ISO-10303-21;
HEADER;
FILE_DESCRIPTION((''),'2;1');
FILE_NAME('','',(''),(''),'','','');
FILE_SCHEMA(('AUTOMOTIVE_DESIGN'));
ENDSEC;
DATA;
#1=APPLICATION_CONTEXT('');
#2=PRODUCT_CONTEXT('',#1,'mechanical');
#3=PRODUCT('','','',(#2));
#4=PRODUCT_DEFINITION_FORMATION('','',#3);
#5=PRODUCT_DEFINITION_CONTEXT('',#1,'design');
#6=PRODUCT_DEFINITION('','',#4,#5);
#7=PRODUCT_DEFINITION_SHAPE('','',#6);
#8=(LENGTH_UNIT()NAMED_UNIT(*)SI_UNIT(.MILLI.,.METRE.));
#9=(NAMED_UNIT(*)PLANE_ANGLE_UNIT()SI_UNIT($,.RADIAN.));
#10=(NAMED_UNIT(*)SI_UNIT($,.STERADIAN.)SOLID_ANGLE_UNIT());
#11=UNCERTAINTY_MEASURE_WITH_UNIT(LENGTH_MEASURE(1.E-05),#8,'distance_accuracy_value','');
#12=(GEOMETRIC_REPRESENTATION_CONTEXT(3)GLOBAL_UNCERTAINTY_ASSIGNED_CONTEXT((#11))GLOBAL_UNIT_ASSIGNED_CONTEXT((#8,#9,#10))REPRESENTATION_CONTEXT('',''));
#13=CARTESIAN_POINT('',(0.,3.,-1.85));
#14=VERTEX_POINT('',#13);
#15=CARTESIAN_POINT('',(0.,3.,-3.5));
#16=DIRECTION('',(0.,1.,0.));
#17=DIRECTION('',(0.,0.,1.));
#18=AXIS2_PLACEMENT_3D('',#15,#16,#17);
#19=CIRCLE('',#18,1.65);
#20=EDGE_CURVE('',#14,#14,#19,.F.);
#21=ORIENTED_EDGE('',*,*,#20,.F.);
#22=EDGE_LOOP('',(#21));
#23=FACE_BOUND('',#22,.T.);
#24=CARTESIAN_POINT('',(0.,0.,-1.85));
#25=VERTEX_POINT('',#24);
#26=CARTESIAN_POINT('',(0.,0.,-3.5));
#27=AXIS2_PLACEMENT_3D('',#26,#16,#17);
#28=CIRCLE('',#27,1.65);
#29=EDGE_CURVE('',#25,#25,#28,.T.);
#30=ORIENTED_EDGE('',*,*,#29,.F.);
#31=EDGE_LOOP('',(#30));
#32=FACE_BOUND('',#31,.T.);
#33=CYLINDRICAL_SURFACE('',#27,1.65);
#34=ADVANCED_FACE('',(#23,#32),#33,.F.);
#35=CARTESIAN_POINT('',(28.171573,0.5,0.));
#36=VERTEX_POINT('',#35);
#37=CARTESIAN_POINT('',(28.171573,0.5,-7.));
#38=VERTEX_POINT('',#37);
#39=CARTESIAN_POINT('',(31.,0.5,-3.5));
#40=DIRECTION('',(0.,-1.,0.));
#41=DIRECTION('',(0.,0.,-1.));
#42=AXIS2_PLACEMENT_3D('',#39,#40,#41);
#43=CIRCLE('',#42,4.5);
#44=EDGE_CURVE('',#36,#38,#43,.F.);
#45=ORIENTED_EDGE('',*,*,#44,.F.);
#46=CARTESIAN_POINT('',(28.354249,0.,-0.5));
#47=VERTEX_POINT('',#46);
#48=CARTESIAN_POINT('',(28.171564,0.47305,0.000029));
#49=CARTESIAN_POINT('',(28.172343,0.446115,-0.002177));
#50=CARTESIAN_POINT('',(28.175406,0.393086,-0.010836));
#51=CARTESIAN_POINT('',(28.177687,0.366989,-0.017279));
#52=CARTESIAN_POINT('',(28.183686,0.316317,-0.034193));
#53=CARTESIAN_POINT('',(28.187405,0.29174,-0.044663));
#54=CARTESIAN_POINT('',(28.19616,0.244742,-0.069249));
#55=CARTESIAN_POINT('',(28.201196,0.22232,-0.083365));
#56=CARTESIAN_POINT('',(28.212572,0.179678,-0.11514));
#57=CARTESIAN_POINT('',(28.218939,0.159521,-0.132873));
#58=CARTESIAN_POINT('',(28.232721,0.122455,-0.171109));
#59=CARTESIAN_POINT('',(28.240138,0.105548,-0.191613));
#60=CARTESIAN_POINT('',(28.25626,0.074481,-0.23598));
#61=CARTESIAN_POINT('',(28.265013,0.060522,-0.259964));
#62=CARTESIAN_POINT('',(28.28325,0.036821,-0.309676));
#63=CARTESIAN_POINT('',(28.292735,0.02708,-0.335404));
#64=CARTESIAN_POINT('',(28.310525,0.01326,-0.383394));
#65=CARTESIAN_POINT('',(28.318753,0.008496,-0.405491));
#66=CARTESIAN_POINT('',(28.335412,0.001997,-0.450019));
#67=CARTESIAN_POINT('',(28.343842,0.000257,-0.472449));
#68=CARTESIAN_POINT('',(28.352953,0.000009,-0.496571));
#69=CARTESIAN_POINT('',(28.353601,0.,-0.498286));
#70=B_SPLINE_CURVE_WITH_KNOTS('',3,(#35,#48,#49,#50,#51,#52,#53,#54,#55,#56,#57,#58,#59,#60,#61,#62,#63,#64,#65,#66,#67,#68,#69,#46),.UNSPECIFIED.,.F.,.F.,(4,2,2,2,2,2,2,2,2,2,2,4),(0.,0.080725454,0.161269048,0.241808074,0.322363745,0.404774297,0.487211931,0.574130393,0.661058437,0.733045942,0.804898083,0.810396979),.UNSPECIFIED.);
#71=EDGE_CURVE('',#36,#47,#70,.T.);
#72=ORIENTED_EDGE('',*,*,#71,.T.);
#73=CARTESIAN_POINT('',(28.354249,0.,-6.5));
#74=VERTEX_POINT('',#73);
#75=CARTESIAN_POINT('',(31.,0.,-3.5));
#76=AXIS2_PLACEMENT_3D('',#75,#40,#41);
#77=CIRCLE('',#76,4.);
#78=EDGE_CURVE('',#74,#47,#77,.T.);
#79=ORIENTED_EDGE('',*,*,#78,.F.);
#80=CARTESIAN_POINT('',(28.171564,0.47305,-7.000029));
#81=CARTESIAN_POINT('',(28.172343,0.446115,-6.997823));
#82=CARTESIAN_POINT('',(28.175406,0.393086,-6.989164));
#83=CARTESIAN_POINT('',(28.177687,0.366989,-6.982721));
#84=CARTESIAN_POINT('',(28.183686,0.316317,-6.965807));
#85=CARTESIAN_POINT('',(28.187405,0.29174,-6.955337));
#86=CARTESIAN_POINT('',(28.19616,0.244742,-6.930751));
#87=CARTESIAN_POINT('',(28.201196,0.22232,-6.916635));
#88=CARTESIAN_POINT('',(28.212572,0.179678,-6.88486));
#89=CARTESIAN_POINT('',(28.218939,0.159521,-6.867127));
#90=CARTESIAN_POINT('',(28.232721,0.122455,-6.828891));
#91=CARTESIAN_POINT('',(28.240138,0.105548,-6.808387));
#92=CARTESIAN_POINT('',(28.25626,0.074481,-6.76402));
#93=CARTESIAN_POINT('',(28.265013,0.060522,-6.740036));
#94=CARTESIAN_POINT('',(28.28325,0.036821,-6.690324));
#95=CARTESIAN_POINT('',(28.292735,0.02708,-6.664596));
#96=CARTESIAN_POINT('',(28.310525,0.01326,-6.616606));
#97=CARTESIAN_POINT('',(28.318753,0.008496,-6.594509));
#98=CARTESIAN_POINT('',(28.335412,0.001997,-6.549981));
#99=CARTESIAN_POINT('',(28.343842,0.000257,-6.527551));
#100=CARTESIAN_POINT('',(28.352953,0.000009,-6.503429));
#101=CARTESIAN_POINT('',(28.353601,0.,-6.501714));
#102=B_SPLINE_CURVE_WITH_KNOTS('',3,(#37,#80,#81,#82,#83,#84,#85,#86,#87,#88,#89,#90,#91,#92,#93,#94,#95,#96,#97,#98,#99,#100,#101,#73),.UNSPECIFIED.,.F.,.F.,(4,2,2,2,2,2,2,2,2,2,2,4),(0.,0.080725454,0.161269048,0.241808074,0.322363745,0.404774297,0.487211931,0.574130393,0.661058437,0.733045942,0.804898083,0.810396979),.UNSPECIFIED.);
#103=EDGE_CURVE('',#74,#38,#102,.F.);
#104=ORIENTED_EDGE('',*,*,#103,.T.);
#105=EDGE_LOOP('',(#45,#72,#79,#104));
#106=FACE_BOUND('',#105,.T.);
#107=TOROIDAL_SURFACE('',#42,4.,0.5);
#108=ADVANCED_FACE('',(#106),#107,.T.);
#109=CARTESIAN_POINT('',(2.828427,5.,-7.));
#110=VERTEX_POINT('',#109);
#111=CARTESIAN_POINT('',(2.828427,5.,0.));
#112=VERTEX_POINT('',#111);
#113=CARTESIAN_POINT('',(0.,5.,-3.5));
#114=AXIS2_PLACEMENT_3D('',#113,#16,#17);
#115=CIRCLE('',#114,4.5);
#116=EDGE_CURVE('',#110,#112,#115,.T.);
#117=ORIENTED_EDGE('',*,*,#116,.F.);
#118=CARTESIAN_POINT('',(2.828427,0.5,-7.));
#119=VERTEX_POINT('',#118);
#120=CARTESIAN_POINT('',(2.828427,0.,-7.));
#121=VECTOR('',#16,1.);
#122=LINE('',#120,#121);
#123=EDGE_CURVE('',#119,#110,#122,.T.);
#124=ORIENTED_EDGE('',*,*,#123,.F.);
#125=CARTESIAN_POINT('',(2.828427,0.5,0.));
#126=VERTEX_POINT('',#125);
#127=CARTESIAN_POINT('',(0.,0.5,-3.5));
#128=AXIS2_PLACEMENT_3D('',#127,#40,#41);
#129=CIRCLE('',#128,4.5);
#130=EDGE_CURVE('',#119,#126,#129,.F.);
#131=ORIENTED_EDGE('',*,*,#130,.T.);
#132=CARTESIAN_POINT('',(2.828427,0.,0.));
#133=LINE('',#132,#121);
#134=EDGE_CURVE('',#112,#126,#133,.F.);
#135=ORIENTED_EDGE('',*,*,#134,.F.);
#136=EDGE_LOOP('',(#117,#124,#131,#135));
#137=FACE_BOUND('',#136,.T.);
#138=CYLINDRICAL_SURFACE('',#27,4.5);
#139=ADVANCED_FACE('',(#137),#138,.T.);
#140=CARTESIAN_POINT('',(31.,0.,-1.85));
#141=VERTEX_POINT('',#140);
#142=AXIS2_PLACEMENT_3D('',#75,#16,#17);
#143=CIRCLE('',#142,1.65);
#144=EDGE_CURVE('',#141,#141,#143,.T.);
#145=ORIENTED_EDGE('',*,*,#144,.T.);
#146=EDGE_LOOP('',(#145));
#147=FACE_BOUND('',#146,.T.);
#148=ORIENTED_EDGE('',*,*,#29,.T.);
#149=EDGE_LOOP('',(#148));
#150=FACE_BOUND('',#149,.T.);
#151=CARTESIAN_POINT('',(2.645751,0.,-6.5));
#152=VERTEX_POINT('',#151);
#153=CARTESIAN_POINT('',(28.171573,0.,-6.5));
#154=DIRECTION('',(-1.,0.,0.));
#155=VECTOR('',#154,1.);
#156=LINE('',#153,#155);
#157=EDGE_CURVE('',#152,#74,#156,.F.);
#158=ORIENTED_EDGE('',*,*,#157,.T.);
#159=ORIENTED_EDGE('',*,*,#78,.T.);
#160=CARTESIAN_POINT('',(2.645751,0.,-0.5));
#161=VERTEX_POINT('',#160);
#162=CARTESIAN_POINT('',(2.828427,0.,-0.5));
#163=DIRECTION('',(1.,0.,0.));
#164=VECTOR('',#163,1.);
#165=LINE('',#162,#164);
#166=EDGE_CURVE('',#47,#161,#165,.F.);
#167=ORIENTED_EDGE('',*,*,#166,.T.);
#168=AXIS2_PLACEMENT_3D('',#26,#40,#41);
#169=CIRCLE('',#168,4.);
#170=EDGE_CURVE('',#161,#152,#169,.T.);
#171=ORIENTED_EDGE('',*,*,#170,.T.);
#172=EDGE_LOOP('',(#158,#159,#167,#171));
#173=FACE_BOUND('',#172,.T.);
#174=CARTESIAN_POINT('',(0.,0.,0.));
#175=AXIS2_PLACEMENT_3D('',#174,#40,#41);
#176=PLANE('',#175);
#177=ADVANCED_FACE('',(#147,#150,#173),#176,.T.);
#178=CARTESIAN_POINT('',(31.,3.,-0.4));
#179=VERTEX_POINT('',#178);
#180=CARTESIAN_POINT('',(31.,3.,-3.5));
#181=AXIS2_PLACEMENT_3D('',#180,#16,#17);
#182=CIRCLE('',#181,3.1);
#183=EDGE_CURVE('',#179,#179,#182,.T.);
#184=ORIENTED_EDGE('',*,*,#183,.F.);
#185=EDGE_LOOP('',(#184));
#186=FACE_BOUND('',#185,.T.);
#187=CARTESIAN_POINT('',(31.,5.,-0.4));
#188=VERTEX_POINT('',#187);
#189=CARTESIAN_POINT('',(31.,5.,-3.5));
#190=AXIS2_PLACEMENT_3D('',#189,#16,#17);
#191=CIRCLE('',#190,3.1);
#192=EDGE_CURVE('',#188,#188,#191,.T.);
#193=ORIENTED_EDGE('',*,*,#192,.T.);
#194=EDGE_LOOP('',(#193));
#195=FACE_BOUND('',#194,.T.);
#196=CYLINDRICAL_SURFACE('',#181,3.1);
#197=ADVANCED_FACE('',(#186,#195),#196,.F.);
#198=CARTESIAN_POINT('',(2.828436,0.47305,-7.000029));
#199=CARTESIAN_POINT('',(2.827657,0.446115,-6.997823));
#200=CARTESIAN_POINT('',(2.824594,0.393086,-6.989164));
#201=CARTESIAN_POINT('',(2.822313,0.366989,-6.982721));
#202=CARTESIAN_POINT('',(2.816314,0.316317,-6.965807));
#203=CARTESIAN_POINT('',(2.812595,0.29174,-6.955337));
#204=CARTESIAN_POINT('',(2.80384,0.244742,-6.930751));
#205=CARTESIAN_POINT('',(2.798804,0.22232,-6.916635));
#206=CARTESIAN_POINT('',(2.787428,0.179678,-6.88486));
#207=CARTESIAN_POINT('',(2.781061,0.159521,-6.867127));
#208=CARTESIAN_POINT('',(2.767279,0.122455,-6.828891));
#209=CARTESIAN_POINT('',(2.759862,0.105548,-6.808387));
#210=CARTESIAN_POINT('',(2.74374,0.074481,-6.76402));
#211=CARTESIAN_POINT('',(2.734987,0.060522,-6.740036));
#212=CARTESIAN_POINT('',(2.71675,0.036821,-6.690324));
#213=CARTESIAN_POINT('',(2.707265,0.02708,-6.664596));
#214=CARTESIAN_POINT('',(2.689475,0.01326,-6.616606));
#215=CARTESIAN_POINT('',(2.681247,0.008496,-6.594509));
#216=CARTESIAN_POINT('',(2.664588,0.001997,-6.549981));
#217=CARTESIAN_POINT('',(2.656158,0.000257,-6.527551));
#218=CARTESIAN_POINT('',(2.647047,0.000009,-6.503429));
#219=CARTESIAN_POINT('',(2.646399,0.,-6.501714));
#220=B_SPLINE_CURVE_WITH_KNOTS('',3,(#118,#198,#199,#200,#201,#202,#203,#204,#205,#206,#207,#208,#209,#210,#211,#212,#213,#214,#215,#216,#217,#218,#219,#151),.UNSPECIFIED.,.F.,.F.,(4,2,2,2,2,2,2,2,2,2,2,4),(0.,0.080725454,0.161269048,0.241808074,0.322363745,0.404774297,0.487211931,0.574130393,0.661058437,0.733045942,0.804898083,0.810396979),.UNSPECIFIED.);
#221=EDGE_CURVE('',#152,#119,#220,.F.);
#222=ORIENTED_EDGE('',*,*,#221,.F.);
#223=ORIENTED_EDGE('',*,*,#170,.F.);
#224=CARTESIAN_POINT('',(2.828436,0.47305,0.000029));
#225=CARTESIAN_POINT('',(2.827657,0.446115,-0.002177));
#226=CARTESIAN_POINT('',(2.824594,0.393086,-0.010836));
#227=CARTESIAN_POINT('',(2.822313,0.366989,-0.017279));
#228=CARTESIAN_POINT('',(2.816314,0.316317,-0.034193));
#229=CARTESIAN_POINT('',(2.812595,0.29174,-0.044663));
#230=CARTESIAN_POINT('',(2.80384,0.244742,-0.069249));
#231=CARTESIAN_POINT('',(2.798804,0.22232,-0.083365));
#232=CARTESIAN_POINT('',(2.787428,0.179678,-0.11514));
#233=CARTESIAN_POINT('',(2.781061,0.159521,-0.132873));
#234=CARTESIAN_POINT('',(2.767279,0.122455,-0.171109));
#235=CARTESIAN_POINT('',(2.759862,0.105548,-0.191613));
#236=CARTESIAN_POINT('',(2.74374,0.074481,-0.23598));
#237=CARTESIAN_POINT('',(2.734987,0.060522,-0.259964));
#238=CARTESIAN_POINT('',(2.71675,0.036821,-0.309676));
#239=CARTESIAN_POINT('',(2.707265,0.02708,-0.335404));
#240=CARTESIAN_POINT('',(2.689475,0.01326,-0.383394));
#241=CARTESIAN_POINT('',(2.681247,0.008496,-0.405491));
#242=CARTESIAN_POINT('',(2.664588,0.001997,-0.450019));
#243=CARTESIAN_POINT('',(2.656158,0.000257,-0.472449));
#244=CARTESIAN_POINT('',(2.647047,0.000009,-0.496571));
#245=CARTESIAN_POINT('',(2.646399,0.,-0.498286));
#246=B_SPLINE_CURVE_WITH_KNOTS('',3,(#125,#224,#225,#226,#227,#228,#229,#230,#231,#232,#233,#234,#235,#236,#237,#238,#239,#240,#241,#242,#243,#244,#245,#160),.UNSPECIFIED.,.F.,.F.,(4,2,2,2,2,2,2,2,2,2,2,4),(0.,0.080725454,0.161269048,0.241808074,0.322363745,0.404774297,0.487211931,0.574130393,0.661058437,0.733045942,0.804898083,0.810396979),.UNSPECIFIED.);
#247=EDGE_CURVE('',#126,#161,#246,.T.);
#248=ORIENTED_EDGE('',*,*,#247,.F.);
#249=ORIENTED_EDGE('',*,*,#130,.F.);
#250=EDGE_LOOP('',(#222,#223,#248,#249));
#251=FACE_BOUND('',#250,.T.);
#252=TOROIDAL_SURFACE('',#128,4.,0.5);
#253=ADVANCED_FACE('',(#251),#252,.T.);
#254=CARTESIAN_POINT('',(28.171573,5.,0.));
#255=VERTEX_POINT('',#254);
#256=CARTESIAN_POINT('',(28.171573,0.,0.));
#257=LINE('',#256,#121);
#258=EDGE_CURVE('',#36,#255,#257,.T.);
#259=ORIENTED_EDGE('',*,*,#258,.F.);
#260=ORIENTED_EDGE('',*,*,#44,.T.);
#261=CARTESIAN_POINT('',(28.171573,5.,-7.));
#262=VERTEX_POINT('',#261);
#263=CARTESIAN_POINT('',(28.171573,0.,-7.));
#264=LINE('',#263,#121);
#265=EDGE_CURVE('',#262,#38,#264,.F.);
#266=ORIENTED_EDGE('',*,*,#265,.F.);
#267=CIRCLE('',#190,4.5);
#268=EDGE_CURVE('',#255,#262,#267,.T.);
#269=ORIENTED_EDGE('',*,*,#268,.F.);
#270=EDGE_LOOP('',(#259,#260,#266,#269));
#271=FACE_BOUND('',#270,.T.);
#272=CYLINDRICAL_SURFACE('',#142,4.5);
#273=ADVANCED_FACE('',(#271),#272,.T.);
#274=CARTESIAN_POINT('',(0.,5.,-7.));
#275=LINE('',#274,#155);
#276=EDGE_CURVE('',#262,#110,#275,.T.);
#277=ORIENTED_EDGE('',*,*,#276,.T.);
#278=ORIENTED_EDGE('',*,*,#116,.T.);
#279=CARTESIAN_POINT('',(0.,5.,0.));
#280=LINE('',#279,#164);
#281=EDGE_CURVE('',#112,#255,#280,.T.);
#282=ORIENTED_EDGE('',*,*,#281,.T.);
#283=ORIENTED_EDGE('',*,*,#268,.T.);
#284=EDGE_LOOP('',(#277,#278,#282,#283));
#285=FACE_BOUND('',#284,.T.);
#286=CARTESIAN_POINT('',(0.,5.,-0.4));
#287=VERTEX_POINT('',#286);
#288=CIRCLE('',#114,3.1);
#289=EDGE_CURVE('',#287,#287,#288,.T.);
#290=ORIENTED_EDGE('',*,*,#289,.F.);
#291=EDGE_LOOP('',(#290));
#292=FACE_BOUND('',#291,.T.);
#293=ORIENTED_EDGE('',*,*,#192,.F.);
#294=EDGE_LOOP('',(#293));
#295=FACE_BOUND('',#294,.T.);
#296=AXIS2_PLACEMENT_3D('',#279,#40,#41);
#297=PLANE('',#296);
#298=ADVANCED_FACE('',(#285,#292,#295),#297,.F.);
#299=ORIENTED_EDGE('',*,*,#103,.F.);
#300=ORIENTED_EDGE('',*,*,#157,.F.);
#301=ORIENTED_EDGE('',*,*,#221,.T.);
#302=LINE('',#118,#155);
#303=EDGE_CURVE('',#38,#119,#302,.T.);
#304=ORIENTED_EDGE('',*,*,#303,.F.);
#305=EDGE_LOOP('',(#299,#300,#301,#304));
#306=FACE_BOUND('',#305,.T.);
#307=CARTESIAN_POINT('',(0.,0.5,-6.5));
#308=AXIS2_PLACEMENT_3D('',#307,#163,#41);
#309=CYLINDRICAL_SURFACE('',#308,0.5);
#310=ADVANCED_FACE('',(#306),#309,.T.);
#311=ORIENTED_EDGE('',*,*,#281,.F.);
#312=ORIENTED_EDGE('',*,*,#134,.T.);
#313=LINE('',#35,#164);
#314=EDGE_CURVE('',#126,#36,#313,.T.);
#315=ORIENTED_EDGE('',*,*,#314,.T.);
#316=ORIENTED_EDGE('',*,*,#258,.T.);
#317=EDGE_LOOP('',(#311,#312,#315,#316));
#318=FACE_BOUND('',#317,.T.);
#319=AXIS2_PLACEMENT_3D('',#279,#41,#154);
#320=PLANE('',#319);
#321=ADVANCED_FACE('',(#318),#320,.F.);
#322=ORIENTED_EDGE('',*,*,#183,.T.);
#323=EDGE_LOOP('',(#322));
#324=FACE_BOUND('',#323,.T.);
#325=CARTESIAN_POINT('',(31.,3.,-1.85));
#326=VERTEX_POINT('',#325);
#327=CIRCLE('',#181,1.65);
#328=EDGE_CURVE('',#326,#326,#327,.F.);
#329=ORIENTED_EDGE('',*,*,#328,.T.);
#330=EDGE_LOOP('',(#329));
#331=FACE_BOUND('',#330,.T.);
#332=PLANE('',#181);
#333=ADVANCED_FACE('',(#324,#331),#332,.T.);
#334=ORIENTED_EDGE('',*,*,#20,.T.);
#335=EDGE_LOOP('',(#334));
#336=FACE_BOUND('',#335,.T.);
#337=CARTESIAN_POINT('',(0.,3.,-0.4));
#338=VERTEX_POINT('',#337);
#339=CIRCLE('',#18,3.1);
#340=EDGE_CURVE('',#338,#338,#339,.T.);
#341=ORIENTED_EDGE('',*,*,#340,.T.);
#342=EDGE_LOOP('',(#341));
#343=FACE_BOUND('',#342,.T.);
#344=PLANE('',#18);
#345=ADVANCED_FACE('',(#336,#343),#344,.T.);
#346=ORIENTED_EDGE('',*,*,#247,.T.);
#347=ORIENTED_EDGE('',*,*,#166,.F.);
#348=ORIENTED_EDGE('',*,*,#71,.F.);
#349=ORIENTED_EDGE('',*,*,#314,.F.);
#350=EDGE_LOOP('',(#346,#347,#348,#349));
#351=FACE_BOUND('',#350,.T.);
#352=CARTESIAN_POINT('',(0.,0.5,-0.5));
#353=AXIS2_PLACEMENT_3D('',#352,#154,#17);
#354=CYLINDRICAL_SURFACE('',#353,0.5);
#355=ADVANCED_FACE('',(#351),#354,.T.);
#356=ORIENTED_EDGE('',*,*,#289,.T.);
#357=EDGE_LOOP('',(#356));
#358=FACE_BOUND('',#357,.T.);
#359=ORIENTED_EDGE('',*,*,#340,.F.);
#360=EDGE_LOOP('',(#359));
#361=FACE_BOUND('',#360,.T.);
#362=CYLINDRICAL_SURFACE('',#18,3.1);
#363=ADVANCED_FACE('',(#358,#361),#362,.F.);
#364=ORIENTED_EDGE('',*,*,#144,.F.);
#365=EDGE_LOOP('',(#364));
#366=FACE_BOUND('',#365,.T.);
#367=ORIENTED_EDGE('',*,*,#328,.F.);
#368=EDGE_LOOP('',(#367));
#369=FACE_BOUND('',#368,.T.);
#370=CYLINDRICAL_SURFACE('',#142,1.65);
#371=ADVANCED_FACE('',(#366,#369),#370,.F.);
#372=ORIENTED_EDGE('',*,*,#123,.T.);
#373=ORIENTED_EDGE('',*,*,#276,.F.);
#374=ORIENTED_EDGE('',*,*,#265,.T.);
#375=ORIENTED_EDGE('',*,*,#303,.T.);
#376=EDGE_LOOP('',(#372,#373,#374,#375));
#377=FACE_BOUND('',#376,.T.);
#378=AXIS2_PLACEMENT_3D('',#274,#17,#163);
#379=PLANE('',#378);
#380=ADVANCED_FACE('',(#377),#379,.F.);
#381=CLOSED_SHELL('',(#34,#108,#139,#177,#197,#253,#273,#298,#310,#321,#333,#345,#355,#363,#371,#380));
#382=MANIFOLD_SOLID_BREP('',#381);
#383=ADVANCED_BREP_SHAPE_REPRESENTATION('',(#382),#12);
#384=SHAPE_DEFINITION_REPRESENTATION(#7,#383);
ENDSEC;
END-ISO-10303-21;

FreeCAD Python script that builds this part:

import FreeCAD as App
import Part
import Sketcher
from FreeCAD import Vector


def edges_at(feature, points):
    """Names of the edges that pass closest to the given points."""
    edges = feature.Shape.Edges
    near = lambda p: min(range(len(edges)), key=lambda i: edges[i].distToShape(Part.Vertex(*p))[0])
    return sorted({f"Edge{near(p) + 1}" for p in points})

doc = App.newDocument("Part")
params = doc.addObject("Spreadsheet::Sheet", "Params")
for row, (alias, value) in enumerate([
    ("sketch1_width", "31 mm"),
    ("sketch1_height", "7 mm"),
    ("pad1_length", "5 mm"),
    ("sketch2_diameter", "9 mm"),
    ("pad2_length", "5 mm"),
    ("sketch3_diameter", "3.3 mm"),
    ("sketch4_diameter", "6.2 mm"),
    ("pocket2_length", "2 mm"),
    ("fillet_radius", "0.5 mm"),
], start=1):
    params.set(f"A{row}", alias)
    params.set(f"B{row}", "=" + value)
    params.setAlias(f"B{row}", alias)

body = doc.addObject("PartDesign::Body", "Body")

# Sketch on XZ plane
sketch1 = body.newObject("Sketcher::SketchObject", "Sketch")
sketch1.AttachmentSupport = (doc.getObject("XZ_Plane"), [""])
sketch1.MapMode = "FlatFace"
sketch1.addGeometry([
    Part.LineSegment(Vector(0, -7, 0), Vector(0, 0, 0)),
    Part.LineSegment(Vector(0, 0, 0), Vector(31, 0, 0)),
    Part.LineSegment(Vector(31, 0, 0), Vector(31, -7, 0)),
    Part.LineSegment(Vector(31, -7, 0), Vector(0, -7, 0)),
], False)
sketch1.addConstraint([
    Sketcher.Constraint("Coincident", 0, 2, 1, 1),
    Sketcher.Constraint("Coincident", 1, 2, 2, 1),
    Sketcher.Constraint("Coincident", 2, 2, 3, 1),
    Sketcher.Constraint("Coincident", 3, 2, 0, 1),
    Sketcher.Constraint("Vertical", 0),
    Sketcher.Constraint("Horizontal", 1),
    Sketcher.Constraint("Vertical", 2),
    Sketcher.Constraint("Horizontal", 3),
    Sketcher.Constraint("Coincident", 0, 2, -1, 1),
    Sketcher.Constraint("DistanceX", 1, 1, 1, 2, 31.0),
    Sketcher.Constraint("DistanceY", 0, 1, 0, 2, 7.0),
])
sketch1.setExpression("Constraints[9]", "Params.sketch1_width")
sketch1.setExpression("Constraints[10]", "Params.sketch1_height")
pad1 = body.newObject("PartDesign::Pad", "Pad")
pad1.Profile = sketch1
pad1.setExpression("Length", "Params.pad1_length")
pad1.Reversed = True

# Sketch on XZ plane
sketch2 = body.newObject("Sketcher::SketchObject", "Sketch001")
sketch2.AttachmentSupport = (doc.getObject("XZ_Plane"), [""])
sketch2.MapMode = "FlatFace"
sketch2.AttachmentOffset = App.Placement(Vector(0, 0, -5), App.Rotation())
sketch2.addGeometry([
    Part.Circle(Vector(31, -3.5, 0), Vector(0, 0, 1), 4.5),
    Part.Circle(Vector(0, -3.5, 0), Vector(0, 0, 1), 4.5),
], False)
sketch2.addConstraint([
    Sketcher.Constraint("Equal", 0, 1),
    Sketcher.Constraint("PointOnObject", 1, 3, -2),
    Sketcher.Constraint("Horizontal", 0, 3, 1, 3),
    Sketcher.Constraint("Diameter", 0, 9.0),
    Sketcher.Constraint("DistanceX", -1, 1, 0, 3, 31.0),
    Sketcher.Constraint("DistanceY", 0, 3, -1, 1, 3.5),
])
sketch2.setExpression("Constraints[3]", "Params.sketch2_diameter")
pad2 = body.newObject("PartDesign::Pad", "Pad001")
pad2.Profile = sketch2
pad2.setExpression("Length", "Params.pad2_length")

# Sketch on XZ plane
sketch3 = body.newObject("Sketcher::SketchObject", "Sketch002")
sketch3.AttachmentSupport = (doc.getObject("XZ_Plane"), [""])
sketch3.MapMode = "FlatFace"
sketch3.AttachmentOffset = App.Placement(Vector(0, 0, -5), App.Rotation())
sketch3.addGeometry([
    Part.Circle(Vector(0, -3.5, 0), Vector(0, 0, 1), 1.65),
    Part.Circle(Vector(31, -3.5, 0), Vector(0, 0, 1), 1.65),
], False)
sketch3.addConstraint([
    Sketcher.Constraint("Equal", 0, 1),
    Sketcher.Constraint("PointOnObject", 0, 3, -2),
    Sketcher.Constraint("Horizontal", 0, 3, 1, 3),
    Sketcher.Constraint("Diameter", 0, 3.3),
    Sketcher.Constraint("DistanceX", -1, 1, 1, 3, 31.0),
    Sketcher.Constraint("DistanceY", 0, 3, -1, 1, 3.5),
])
sketch3.setExpression("Constraints[3]", "Params.sketch3_diameter")
pocket1 = body.newObject("PartDesign::Pocket", "Pocket")
pocket1.Profile = sketch3
pocket1.Type = "ThroughAll"
pocket1.Reversed = True

# Sketch on XZ plane
sketch4 = body.newObject("Sketcher::SketchObject", "Sketch003")
sketch4.AttachmentSupport = (doc.getObject("XZ_Plane"), [""])
sketch4.MapMode = "FlatFace"
sketch4.AttachmentOffset = App.Placement(Vector(0, 0, -5), App.Rotation())
sketch4.addGeometry([
    Part.Circle(Vector(0, -3.5, 0), Vector(0, 0, 1), 3.1),
    Part.Circle(Vector(31, -3.5, 0), Vector(0, 0, 1), 3.1),
], False)
sketch4.addConstraint([
    Sketcher.Constraint("Equal", 0, 1),
    Sketcher.Constraint("PointOnObject", 0, 3, -2),
    Sketcher.Constraint("Horizontal", 0, 3, 1, 3),
    Sketcher.Constraint("Diameter", 0, 6.2),
    Sketcher.Constraint("DistanceX", -1, 1, 1, 3, 31.0),
    Sketcher.Constraint("DistanceY", 0, 3, -1, 1, 3.5),
])
sketch4.setExpression("Constraints[3]", "Params.sketch4_diameter")
pocket2 = body.newObject("PartDesign::Pocket", "Pocket001")
pocket2.Profile = sketch4
pocket2.setExpression("Length", "Params.pocket2_length")
pocket2.Reversed = True
doc.recompute()

fillet = body.newObject("PartDesign::Fillet", "Fillet")
fillet.Base = (pocket2, edges_at(pocket2, [
    (15.5, 0, -7),
    (35.5, 0, -3.5),
    (15.5, 0, 0),
    (-4.5, 0, -3.5),
]))
fillet.setExpression("Radius", "Params.fillet_radius")

doc.recompute()
